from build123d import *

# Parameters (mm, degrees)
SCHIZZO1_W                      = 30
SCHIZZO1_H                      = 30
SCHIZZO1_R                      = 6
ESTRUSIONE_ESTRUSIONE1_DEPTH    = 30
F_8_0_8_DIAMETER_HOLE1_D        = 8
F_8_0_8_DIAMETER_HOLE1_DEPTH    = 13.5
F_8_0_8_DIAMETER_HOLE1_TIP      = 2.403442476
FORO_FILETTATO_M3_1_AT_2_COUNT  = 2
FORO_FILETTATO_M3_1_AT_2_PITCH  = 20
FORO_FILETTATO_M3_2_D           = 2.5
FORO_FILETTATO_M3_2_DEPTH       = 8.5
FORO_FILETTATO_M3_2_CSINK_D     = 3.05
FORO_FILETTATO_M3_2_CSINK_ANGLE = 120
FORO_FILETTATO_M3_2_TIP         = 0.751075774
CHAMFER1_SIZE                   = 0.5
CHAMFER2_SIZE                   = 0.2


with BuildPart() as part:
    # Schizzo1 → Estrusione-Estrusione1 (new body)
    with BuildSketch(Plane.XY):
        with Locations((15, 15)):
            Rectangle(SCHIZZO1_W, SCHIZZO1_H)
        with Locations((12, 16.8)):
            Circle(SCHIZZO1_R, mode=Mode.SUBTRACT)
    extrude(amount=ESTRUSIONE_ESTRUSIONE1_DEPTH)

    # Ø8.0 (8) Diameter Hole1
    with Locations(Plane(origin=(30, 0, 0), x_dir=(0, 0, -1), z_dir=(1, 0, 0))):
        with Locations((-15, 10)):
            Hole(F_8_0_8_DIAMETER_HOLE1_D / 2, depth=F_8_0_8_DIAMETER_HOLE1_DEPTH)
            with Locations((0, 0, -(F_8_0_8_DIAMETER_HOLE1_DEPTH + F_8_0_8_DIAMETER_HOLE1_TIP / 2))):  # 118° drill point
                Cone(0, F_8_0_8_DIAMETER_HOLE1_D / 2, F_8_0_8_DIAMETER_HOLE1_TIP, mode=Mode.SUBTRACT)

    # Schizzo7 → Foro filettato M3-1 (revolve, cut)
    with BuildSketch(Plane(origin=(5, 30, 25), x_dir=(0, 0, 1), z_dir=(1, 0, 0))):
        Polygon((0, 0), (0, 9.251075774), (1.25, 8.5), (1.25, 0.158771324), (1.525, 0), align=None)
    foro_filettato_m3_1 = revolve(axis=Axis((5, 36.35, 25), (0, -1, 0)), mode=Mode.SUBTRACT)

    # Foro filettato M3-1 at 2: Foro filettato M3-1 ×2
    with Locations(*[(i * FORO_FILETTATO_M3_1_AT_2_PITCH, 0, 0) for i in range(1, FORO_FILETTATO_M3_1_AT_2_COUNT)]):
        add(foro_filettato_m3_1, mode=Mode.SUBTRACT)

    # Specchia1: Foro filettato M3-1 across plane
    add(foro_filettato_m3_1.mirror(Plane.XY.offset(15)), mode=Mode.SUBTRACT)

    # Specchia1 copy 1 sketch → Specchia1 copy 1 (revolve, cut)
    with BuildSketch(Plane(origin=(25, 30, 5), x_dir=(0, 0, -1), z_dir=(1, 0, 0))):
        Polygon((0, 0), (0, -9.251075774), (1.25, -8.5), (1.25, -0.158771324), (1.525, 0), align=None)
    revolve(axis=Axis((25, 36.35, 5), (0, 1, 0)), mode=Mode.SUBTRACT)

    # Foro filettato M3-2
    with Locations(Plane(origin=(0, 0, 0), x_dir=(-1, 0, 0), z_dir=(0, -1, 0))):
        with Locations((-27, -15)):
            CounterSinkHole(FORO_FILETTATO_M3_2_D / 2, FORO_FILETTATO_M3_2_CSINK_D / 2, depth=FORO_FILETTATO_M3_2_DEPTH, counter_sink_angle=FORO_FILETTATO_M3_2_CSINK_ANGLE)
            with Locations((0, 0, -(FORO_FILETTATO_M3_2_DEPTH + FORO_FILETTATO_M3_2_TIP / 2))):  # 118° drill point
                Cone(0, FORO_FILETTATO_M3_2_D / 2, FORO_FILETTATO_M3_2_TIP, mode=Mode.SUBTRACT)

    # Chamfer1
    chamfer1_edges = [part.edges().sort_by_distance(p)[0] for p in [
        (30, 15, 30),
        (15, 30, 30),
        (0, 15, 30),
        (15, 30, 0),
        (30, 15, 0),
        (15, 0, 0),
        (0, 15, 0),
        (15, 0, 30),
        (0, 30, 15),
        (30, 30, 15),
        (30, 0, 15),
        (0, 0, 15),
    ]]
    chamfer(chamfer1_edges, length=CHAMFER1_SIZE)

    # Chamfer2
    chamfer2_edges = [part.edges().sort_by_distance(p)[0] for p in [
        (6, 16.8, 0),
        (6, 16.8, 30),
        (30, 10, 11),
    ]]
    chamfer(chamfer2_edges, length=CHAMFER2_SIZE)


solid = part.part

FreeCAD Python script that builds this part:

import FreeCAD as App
import Part
import Sketcher
from FreeCAD import Vector
Q = App.Units.Quantity


def edges_at(feature, points):
    """Names of the edges that pass closest to the given points."""
    edges = feature.Shape.Edges
    near = lambda p: min(range(len(edges)), key=lambda i: edges[i].distToShape(Part.Vertex(*p))[0])
    return sorted({f"Edge{near(p) + 1}" for p in points})

doc = App.newDocument("Part")
body = doc.addObject("PartDesign::Body", "Body")

sketch1 = body.newObject("Sketcher::SketchObject", "Sketch")
sketch1.AttachmentSupport = (doc.getObject("XY_Plane"), [""])
sketch1.MapMode = "FlatFace"
sketch1.addGeometry([
    Part.LineSegment(Vector(0, 30, 0), Vector(0, 0, 0)),
    Part.LineSegment(Vector(0, 0, 0), Vector(30, 0, 0)),
    Part.LineSegment(Vector(30, 0, 0), Vector(30, 30, 0)),
    Part.LineSegment(Vector(30, 30, 0), Vector(0, 30, 0)),
    Part.Circle(Vector(12, 16.8, 0), Vector(0, 0, 1), 6),
], False)
sketch1.addConstraint([
    Sketcher.Constraint("Coincident", 0, 2, 1, 1),
    Sketcher.Constraint("Coincident", 1, 2, 2, 1),
    Sketcher.Constraint("Coincident", 2, 2, 3, 1),
    Sketcher.Constraint("Coincident", 3, 2, 0, 1),
    Sketcher.Constraint("Vertical", 0),
    Sketcher.Constraint("Horizontal", 1),
    Sketcher.Constraint("Vertical", 2),
    Sketcher.Constraint("Horizontal", 3),
    Sketcher.Constraint("Coincident", 0, 2, -1, 1),
    Sketcher.Constraint("Equal", 3, 0),
    Sketcher.Constraint("Diameter", 4, 12.0),
    Sketcher.Constraint("DistanceX", 1, 1, 1, 2, 30.0),
    Sketcher.Constraint("DistanceX", -1, 1, 4, 3, 12.0),
    Sketcher.Constraint("DistanceY", -1, 1, 4, 3, 16.8),
])
pad1 = body.newObject("PartDesign::Pad", "Pad")
pad1.Profile = sketch1
pad1.Length = 30

sketch2 = body.newObject("Sketcher::SketchObject", "Sketch001")
sketch2.AttachmentSupport = (doc.getObject("YZ_Plane"), [""])
sketch2.MapMode = "FlatFace"
sketch2.AttachmentOffset = App.Placement(Vector(0, 0, 30), App.Rotation())
sketch2.addGeometry(Part.Circle(Vector(10, 15, 0), Vector(0, 0, 1), 4), False)
sketch2.addConstraint([
    Sketcher.Constraint("Diameter", 0, 8.0),
    Sketcher.Constraint("DistanceX", -1, 1, 0, 3, 10.0),
    Sketcher.Constraint("DistanceY", -1, 1, 0, 3, 15.0),
])
doc.recompute()
hole = body.newObject("PartDesign::Hole", "Hole")
hole.Profile = sketch2
hole.ThreadType = "None"
hole.Diameter = 8
hole.DepthType = "Dimension"
hole.Depth = 13.5
hole.DrillPoint = "Angled"
hole.DrillPointAngle = 118

sketch3 = body.newObject("Sketcher::SketchObject", "Sketch002")
sketch3.AttachmentSupport = (doc.getObject("YZ_Plane"), [""])
sketch3.MapMode = "FlatFace"
sketch3.AttachmentOffset = App.Placement(Vector(0, 0, 5), App.Rotation())
sketch3.addGeometry([
    Part.LineSegment(Vector(20.748924, 25, 0), Vector(30, 25, 0)),
    Part.LineSegment(Vector(30, 25, 0), Vector(30, 26.525, 0)),
    Part.LineSegment(Vector(30, 26.525, 0), Vector(29.841229, 26.25, 0)),
    Part.LineSegment(Vector(29.841229, 26.25, 0), Vector(21.5, 26.25, 0)),
    Part.LineSegment(Vector(21.5, 26.25, 0), Vector(20.748924, 25, 0)),
], False)
sketch3.addGeometry(Part.LineSegment(Vector(30, 25, 0), Vector(20.748924, 25, 0)), True)
sketch3.addConstraint([
    Sketcher.Constraint("Coincident", 0, 2, 1, 1),
    Sketcher.Constraint("Coincident", 1, 2, 2, 1),
    Sketcher.Constraint("Coincident", 2, 2, 3, 1),
    Sketcher.Constraint("Coincident", 3, 2, 4, 1),
    Sketcher.Constraint("Coincident", 4, 2, 0, 1),
    Sketcher.Constraint("Horizontal", 0),
    Sketcher.Constraint("Vertical", 1),
    Sketcher.Constraint("Horizontal", 3),
    Sketcher.Constraint("Horizontal", 5),
    Sketcher.Constraint("Coincident", 5, 1, 0, 2),
    Sketcher.Constraint("Equal", 0, 5),
    Sketcher.Constraint("Angle", 2, Q("-120 deg")),
    Sketcher.Constraint("Angle", 4, Q("-121 deg")),
    Sketcher.Constraint("DistanceX", -1, 1, 0, 2, 30.0),
    Sketcher.Constraint("DistanceY", -1, 1, 0, 2, 25.0),
    Sketcher.Constraint("DistanceX", -1, 1, 3, 2, 21.5),
    Sketcher.Constraint("DistanceY", 1, 1, 1, 2, 1.525),
    Sketcher.Constraint("DistanceY", -1, 1, 2, 2, 26.25),
])
groove = body.newObject("PartDesign::Groove", "Groove")
groove.Profile = sketch3
groove.ReferenceAxis = (sketch3, ["Axis0"])
groove.Angle = 360
doc.recompute()

linearpattern = body.newObject("PartDesign::LinearPattern", "LinearPattern")
linearpattern.Originals = [groove]
linearpattern.Direction = (doc.getObject("X_Axis"), [""])
linearpattern.Mode = "offset"
linearpattern.Offset = 20
linearpattern.Occurrences = 2
body.Tip = linearpattern
doc.recompute()

datumplane = body.newObject("PartDesign::Plane", "DatumPlane")
datumplane.AttachmentSupport = (doc.getObject("XY_Plane"), [""])
datumplane.MapMode = "FlatFace"
datumplane.AttachmentOffset = App.Placement(Vector(0, 0, 15), App.Rotation())
mirrored = body.newObject("PartDesign::Mirrored", "Mirrored")
mirrored.Originals = [groove]
mirrored.MirrorPlane = (datumplane, [""])
body.Tip = mirrored

sketch4 = body.newObject("Sketcher::SketchObject", "Sketch003")
sketch4.AttachmentSupport = (doc.getObject("YZ_Plane"), [""])
sketch4.MapMode = "FlatFace"
sketch4.AttachmentOffset = App.Placement(Vector(0, 0, 25), App.Rotation())
sketch4.addGeometry([
    Part.LineSegment(Vector(30, 5, 0), Vector(20.748924, 5, 0)),
    Part.LineSegment(Vector(20.748924, 5, 0), Vector(21.5, 3.75, 0)),
    Part.LineSegment(Vector(21.5, 3.75, 0), Vector(29.841229, 3.75, 0)),
    Part.LineSegment(Vector(29.841229, 3.75, 0), Vector(30, 3.475, 0)),
    Part.LineSegment(Vector(30, 3.475, 0), Vector(30, 5, 0)),
], False)
sketch4.addGeometry(Part.LineSegment(Vector(20.748924, 5, 0), Vector(30, 5, 0)), True)
sketch4.addConstraint([
    Sketcher.Constraint("Coincident", 0, 2, 1, 1),
    Sketcher.Constraint("Coincident", 1, 2, 2, 1),
    Sketcher.Constraint("Coincident", 2, 2, 3, 1),
    Sketcher.Constraint("Coincident", 3, 2, 4, 1),
    Sketcher.Constraint("Coincident", 4, 2, 0, 1),
    Sketcher.Constraint("Horizontal", 0),
    Sketcher.Constraint("Horizontal", 2),
    Sketcher.Constraint("Vertical", 4),
    Sketcher.Constraint("Horizontal", 5),
    Sketcher.Constraint("Coincident", 5, 1, 0, 2),
    Sketcher.Constraint("Vertical", 3, 2, 5, 2),
    Sketcher.Constraint("Angle", 1, Q("-59 deg")),
    Sketcher.Constraint("Angle", 3, Q("-60 deg")),
    Sketcher.Constraint("DistanceY", -1, 1, 0, 2, 5.0),
    Sketcher.Constraint("DistanceX", -1, 1, 3, 2, 30.0),
    Sketcher.Constraint("DistanceX", -1, 1, 1, 2, 21.5),
    Sketcher.Constraint("DistanceY", 4, 1, 4, 2, 1.525),
    Sketcher.Constraint("DistanceY", -1, 1, 1, 2, 3.75),
])
groove2 = body.newObject("PartDesign::Groove", "Groove001")
groove2.Profile = sketch4
groove2.ReferenceAxis = (sketch4, ["Axis0"])
groove2.Angle = 360

sketch5 = body.newObject("Sketcher::SketchObject", "Sketch004")
sketch5.AttachmentSupport = (doc.getObject("XZ_Plane"), [""])
sketch5.MapMode = "FlatFace"
sketch5.addGeometry(Part.Circle(Vector(27, 15, 0), Vector(0, 0, 1), 1.25), False)
sketch5.addConstraint([
    Sketcher.Constraint("Diameter", 0, 2.5),
    Sketcher.Constraint("DistanceX", -1, 1, 0, 3, 27.0),
    Sketcher.Constraint("DistanceY", -1, 1, 0, 3, 15.0),
])
doc.recompute()
hole2 = body.newObject("PartDesign::Hole", "Hole001")
hole2.Profile = sketch5
hole2.ThreadType = "None"
hole2.Diameter = 2.5
hole2.DepthType = "Dimension"
hole2.Depth = 8.5
hole2.DrillPoint = "Angled"
hole2.DrillPointAngle = 118
hole2.HoleCutType = "Countersink"
hole2.HoleCutDiameter = 3.05
hole2.HoleCutCountersinkAngle = 120
doc.recompute()

chamfer = body.newObject("PartDesign::Chamfer", "Chamfer")
chamfer.Base = (hole2, edges_at(hole2, [
    (30, 15, 30),
    (15, 30, 30),
    (0, 15, 30),
    (15, 30, 0),
    (30, 15, 0),
    (15, 0, 0),
    (0, 15, 0),
    (15, 0, 30),
    (0, 30, 15),
    (30, 30, 15),
    (30, 0, 15),
    (0, 0, 15),
]))
chamfer.Size = 0.5
doc.recompute()

chamfer2 = body.newObject("PartDesign::Chamfer", "Chamfer001")
chamfer2.Base = (chamfer, edges_at(chamfer, [(6, 16.8, 0), (6, 16.8, 30), (30, 10, 11)]))
chamfer2.Size = 0.2

doc.recompute()
